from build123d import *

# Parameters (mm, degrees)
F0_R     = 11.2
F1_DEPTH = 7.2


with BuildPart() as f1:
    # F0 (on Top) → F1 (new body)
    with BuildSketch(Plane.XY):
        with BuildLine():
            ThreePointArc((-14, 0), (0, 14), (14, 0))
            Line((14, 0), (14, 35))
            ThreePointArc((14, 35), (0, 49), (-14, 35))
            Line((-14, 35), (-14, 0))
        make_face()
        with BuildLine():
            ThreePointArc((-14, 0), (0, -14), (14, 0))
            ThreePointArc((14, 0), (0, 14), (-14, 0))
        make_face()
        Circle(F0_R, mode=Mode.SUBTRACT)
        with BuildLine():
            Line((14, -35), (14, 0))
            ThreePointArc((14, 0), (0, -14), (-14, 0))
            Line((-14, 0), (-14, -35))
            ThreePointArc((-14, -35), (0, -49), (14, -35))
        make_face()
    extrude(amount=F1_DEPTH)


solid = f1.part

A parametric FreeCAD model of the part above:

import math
import FreeCAD as App
import Part
import Sketcher
from FreeCAD import Vector
Q = App.Units.Quantity

doc = App.newDocument("Part")
params = doc.addObject("Spreadsheet::Sheet", "Params")
for row, (alias, value) in enumerate([
    ("sketch1_radius", "14 mm"),
    ("sketch1_diameter", "22.4 mm"),
    ("sketch1_height", "70 mm"),
    ("pad1_length", "7.2 mm"),
], start=1):
    params.set(f"A{row}", alias)
    params.set(f"B{row}", "=" + value)
    params.setAlias(f"B{row}", alias)

body = doc.addObject("PartDesign::Body", "Body")

sketch1 = body.newObject("Sketcher::SketchObject", "Sketch")
sketch1.AttachmentSupport = (doc.getObject("XY_Plane"), [""])
sketch1.MapMode = "FlatFace"
sketch1.addGeometry([
    Part.ArcOfCircle(Part.Circle(Vector(0, 35, 0), Vector(0, 0, 1), 14), math.radians(0), math.radians(180)),
    Part.LineSegment(Vector(-14, 35, 0), Vector(-14, -35, 0)),
    Part.ArcOfCircle(Part.Circle(Vector(0, -35, 0), Vector(0, 0, 1), 14), math.radians(180), math.radians(360)),
    Part.LineSegment(Vector(14, -35, 0), Vector(14, 35, 0)),
    Part.Circle(Vector(0, 0, 0), Vector(0, 0, 1), 11),
], False)
sketch1.addConstraint([
    Sketcher.Constraint("Tangent", 0, 2, 1, 1),
    Sketcher.Constraint("Tangent", 1, 2, 2, 1),
    Sketcher.Constraint("Tangent", 2, 2, 3, 1),
    Sketcher.Constraint("Tangent", 3, 2, 0, 1),
    Sketcher.Constraint("Vertical", 1),
    Sketcher.Constraint("Vertical", 3),
    Sketcher.Constraint("Coincident", 4, 3, -1, 1),
    Sketcher.Constraint("Symmetric", 0, 3, 2, 3, -1, 1),
    Sketcher.Constraint("Radius", 0, Q("14 mm")),
    Sketcher.Constraint("Diameter", 4, Q("22.4 mm")),
    Sketcher.Constraint("DistanceY", 1, 2, 1, 1, Q("70 mm")),
])
sketch1.setExpression("Constraints[8]", "Params.sketch1_radius")
sketch1.setExpression("Constraints[9]", "Params.sketch1_diameter")
sketch1.setExpression("Constraints[10]", "Params.sketch1_height")
pad1 = body.newObject("PartDesign::Pad", "Pad")
pad1.Profile = sketch1
pad1.setExpression("Length", "Params.pad1_length")

doc.recompute()
